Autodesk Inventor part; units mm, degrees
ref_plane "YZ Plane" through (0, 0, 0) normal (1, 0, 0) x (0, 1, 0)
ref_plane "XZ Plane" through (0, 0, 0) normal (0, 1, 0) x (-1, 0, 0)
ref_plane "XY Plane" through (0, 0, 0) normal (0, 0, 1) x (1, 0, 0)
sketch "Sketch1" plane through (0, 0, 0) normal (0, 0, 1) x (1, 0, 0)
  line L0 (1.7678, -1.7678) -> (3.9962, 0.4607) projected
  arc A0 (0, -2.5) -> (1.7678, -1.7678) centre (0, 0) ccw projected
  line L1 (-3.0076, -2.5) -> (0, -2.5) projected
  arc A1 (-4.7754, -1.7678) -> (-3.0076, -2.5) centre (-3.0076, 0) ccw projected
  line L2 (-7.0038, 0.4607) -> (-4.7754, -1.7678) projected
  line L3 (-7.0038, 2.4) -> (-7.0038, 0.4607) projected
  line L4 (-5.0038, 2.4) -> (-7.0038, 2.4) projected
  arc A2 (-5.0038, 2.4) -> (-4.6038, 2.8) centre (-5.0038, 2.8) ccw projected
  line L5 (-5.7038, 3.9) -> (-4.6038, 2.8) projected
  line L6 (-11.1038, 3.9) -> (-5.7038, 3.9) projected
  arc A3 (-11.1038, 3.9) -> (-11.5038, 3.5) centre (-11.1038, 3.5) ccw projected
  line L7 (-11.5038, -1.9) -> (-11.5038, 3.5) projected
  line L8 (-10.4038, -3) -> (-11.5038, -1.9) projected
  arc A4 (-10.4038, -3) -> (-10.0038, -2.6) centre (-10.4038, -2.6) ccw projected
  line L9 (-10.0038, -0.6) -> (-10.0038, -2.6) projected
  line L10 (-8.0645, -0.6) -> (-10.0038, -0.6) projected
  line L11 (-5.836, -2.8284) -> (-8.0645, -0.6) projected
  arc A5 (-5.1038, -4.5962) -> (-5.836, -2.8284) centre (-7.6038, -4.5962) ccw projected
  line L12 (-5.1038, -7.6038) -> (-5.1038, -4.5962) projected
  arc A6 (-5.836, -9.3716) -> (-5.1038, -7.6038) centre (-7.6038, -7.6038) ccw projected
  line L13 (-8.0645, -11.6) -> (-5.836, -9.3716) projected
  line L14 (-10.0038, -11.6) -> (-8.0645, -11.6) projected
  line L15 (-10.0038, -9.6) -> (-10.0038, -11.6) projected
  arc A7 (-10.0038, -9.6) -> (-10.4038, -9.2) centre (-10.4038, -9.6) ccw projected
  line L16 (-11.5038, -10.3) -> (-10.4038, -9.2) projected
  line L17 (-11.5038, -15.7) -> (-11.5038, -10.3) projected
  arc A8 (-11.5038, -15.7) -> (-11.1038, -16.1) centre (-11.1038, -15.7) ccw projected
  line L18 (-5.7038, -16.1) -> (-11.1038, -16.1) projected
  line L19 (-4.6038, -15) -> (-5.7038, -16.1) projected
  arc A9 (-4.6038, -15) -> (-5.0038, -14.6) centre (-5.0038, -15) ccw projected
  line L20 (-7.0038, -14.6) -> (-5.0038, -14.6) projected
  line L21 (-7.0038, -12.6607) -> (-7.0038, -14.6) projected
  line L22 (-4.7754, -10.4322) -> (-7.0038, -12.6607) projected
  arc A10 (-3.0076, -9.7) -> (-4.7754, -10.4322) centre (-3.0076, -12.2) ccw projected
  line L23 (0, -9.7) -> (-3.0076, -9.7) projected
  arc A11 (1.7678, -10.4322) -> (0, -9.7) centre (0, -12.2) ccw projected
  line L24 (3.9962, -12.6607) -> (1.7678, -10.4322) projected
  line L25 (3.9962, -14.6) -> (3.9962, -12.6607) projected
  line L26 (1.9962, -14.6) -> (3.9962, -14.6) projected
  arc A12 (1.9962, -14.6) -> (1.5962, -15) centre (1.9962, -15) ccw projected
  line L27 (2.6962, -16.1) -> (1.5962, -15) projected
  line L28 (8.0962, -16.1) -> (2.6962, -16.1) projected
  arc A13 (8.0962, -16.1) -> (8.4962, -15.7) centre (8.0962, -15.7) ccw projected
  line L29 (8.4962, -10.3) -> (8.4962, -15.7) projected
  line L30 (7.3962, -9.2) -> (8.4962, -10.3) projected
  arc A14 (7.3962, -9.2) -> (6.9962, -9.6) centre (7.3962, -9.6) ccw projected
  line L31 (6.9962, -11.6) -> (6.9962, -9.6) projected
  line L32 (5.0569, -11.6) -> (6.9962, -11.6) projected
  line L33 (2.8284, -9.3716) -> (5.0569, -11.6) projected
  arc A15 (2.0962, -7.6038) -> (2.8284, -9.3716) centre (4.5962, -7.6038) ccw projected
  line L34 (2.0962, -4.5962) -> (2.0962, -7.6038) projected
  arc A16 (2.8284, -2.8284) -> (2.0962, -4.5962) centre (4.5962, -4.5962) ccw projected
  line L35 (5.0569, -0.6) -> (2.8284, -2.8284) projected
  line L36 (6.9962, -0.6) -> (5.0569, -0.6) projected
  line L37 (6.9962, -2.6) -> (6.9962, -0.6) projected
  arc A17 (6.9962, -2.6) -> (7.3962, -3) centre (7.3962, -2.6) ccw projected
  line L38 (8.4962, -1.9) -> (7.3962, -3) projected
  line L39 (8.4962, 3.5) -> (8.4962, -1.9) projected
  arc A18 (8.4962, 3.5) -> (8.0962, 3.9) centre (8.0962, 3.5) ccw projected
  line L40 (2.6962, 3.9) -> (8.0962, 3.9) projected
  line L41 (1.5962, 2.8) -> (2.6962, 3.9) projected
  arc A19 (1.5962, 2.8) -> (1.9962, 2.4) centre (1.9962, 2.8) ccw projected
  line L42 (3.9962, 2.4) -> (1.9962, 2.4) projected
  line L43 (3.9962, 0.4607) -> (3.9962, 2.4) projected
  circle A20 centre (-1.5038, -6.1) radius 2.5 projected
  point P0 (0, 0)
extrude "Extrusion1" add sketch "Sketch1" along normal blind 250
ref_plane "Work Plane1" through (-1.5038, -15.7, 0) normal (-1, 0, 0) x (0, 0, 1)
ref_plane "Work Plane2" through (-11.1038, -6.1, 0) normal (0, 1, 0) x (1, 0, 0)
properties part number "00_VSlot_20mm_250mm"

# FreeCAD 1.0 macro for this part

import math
import FreeCAD as App
import Part
import Sketcher
from FreeCAD import Vector
Q = App.Units.Quantity

doc = App.newDocument("Part")
body = doc.addObject("PartDesign::Body", "Body")

# Sketch on XY plane
sketch1 = body.newObject("Sketcher::SketchObject", "Sketch")
sketch1.AttachmentSupport = (doc.getObject("XY_Plane"), [""])
sketch1.MapMode = "FlatFace"
sketch1.addGeometry(Part.LineSegment(Vector(4, 0.46, 0), Vector(1.77, -1.77, 0)), False)
sketch1.addGeometry(Part.ArcOfCircle(Part.Circle(Vector(0, 0, 0), Vector(0, 0, 1), 2.5), math.radians(-90), math.radians(-45)), False)
sketch1.addGeometry(Part.LineSegment(Vector(0, -2.5, 0), Vector(-3.01, -2.5, 0)), False)
sketch1.addGeometry(Part.ArcOfCircle(Part.Circle(Vector(-3.01, 0, 0), Vector(0, 0, 1), 2.5), math.radians(-135), math.radians(-90)), False)
sketch1.addGeometry(Part.LineSegment(Vector(-4.78, -1.77, 0), Vector(-7, 0.46, 0)), False)
sketch1.addGeometry(Part.LineSegment(Vector(-7, 0.46, 0), Vector(-7, 2.4, 0)), False)
sketch1.addGeometry(Part.LineSegment(Vector(-7, 2.4, 0), Vector(-5, 2.4, 0)), False)
sketch1.addGeometry(Part.ArcOfCircle(Part.Circle(Vector(-5, 2.8, 0), Vector(0, 0, 1), 0.4), math.radians(-90), math.radians(0)), False)
sketch1.addGeometry(Part.LineSegment(Vector(-4.6, 2.8, 0), Vector(-5.7, 3.9, 0)), False)
sketch1.addGeometry(Part.LineSegment(Vector(-5.7, 3.9, 0), Vector(-11.1, 3.9, 0)), False)
sketch1.addGeometry(Part.ArcOfCircle(Part.Circle(Vector(-11.1, 3.5, 0), Vector(0, 0, 1), 0.4), math.radians(90), math.radians(180)), False)
sketch1.addGeometry(Part.LineSegment(Vector(-11.5, 3.5, 0), Vector(-11.5, -1.9, 0)), False)
sketch1.addGeometry(Part.LineSegment(Vector(-11.5, -1.9, 0), Vector(-10.4, -3, 0)), False)
sketch1.addGeometry(Part.ArcOfCircle(Part.Circle(Vector(-10.4, -2.6, 0), Vector(0, 0, 1), 0.4), math.radians(-90), math.radians(0)), False)
sketch1.addGeometry(Part.LineSegment(Vector(-10, -2.6, 0), Vector(-10, -0.6, 0)), False)
sketch1.addGeometry(Part.LineSegment(Vector(-10, -0.6, 0), Vector(-8.06, -0.6, 0)), False)
sketch1.addGeometry(Part.LineSegment(Vector(-8.06, -0.6, 0), Vector(-5.84, -2.83, 0)), False)
sketch1.addGeometry(Part.ArcOfCircle(Part.Circle(Vector(-7.6, -4.6, 0), Vector(0, 0, 1), 2.5), math.radians(0), math.radians(45)), False)
sketch1.addGeometry(Part.LineSegment(Vector(-5.1, -4.6, 0), Vector(-5.1, -7.6, 0)), False)
sketch1.addGeometry(Part.ArcOfCircle(Part.Circle(Vector(-7.6, -7.6, 0), Vector(0, 0, 1), 2.5), math.radians(-45), math.radians(0)), False)
sketch1.addGeometry(Part.LineSegment(Vector(-5.84, -9.37, 0), Vector(-8.06, -11.6, 0)), False)
sketch1.addGeometry(Part.LineSegment(Vector(-8.06, -11.6, 0), Vector(-10, -11.6, 0)), False)
sketch1.addGeometry(Part.LineSegment(Vector(-10, -11.6, 0), Vector(-10, -9.6, 0)), False)
sketch1.addGeometry(Part.ArcOfCircle(Part.Circle(Vector(-10.4, -9.6, 0), Vector(0, 0, 1), 0.4), math.radians(0), math.radians(90)), False)
sketch1.addGeometry(Part.LineSegment(Vector(-10.4, -9.2, 0), Vector(-11.5, -10.3, 0)), False)
sketch1.addGeometry(Part.LineSegment(Vector(-11.5, -10.3, 0), Vector(-11.5, -15.7, 0)), False)
sketch1.addGeometry(Part.ArcOfCircle(Part.Circle(Vector(-11.1, -15.7, 0), Vector(0, 0, 1), 0.4), math.radians(180), math.radians(270)), False)
sketch1.addGeometry(Part.LineSegment(Vector(-11.1, -16.1, 0), Vector(-5.7, -16.1, 0)), False)
sketch1.addGeometry(Part.LineSegment(Vector(-5.7, -16.1, 0), Vector(-4.6, -15, 0)), False)
sketch1.addGeometry(Part.ArcOfCircle(Part.Circle(Vector(-5, -15, 0), Vector(0, 0, 1), 0.4), math.radians(0), math.radians(90)), False)
sketch1.addGeometry(Part.LineSegment(Vector(-5, -14.6, 0), Vector(-7, -14.6, 0)), False)
sketch1.addGeometry(Part.LineSegment(Vector(-7, -14.6, 0), Vector(-7, -12.66, 0)), False)
sketch1.addGeometry(Part.LineSegment(Vector(-7, -12.66, 0), Vector(-4.78, -10.43, 0)), False)
sketch1.addGeometry(Part.ArcOfCircle(Part.Circle(Vector(-3.01, -12.2, 0), Vector(0, 0, 1), 2.5), math.radians(90), math.radians(135)), False)
sketch1.addGeometry(Part.LineSegment(Vector(-3.01, -9.7, 0), Vector(0, -9.7, 0)), False)
sketch1.addGeometry(Part.ArcOfCircle(Part.Circle(Vector(0, -12.2, 0), Vector(0, 0, 1), 2.5), math.radians(45), math.radians(90)), False)
sketch1.addGeometry(Part.LineSegment(Vector(1.77, -10.43, 0), Vector(4, -12.66, 0)), False)
sketch1.addGeometry(Part.LineSegment(Vector(4, -12.66, 0), Vector(4, -14.6, 0)), False)
sketch1.addGeometry(Part.LineSegment(Vector(4, -14.6, 0), Vector(2, -14.6, 0)), False)
sketch1.addGeometry(Part.ArcOfCircle(Part.Circle(Vector(2, -15, 0), Vector(0, 0, 1), 0.4), math.radians(90), math.radians(180)), False)
sketch1.addGeometry(Part.LineSegment(Vector(1.6, -15, 0), Vector(2.7, -16.1, 0)), False)
sketch1.addGeometry(Part.LineSegment(Vector(2.7, -16.1, 0), Vector(8.1, -16.1, 0)), False)
sketch1.addGeometry(Part.ArcOfCircle(Part.Circle(Vector(8.1, -15.7, 0), Vector(0, 0, 1), 0.4), math.radians(-90), math.radians(0)), False)
sketch1.addGeometry(Part.LineSegment(Vector(8.5, -15.7, 0), Vector(8.5, -10.3, 0)), False)
sketch1.addGeometry(Part.LineSegment(Vector(8.5, -10.3, 0), Vector(7.4, -9.2, 0)), False)
sketch1.addGeometry(Part.ArcOfCircle(Part.Circle(Vector(7.4, -9.6, 0), Vector(0, 0, 1), 0.4), math.radians(90), math.radians(180)), False)
sketch1.addGeometry(Part.LineSegment(Vector(7, -9.6, 0), Vector(7, -11.6, 0)), False)
sketch1.addGeometry(Part.LineSegment(Vector(7, -11.6, 0), Vector(5.06, -11.6, 0)), False)
sketch1.addGeometry(Part.LineSegment(Vector(5.06, -11.6, 0), Vector(2.83, -9.37, 0)), False)
sketch1.addGeometry(Part.ArcOfCircle(Part.Circle(Vector(4.6, -7.6, 0), Vector(0, 0, 1), 2.5), math.radians(180), math.radians(225)), False)
sketch1.addGeometry(Part.LineSegment(Vector(2.1, -7.6, 0), Vector(2.1, -4.6, 0)), False)
sketch1.addGeometry(Part.ArcOfCircle(Part.Circle(Vector(4.6, -4.6, 0), Vector(0, 0, 1), 2.5), math.radians(135), math.radians(180)), False)
sketch1.addGeometry(Part.LineSegment(Vector(2.83, -2.83, 0), Vector(5.06, -0.6, 0)), False)
sketch1.addGeometry(Part.LineSegment(Vector(5.06, -0.6, 0), Vector(7, -0.6, 0)), False)
sketch1.addGeometry(Part.LineSegment(Vector(7, -0.6, 0), Vector(7, -2.6, 0)), False)
sketch1.addGeometry(Part.ArcOfCircle(Part.Circle(Vector(7.4, -2.6, 0), Vector(0, 0, 1), 0.4), math.radians(180), math.radians(270)), False)
sketch1.addGeometry(Part.LineSegment(Vector(7.4, -3, 0), Vector(8.5, -1.9, 0)), False)
sketch1.addGeometry(Part.LineSegment(Vector(8.5, -1.9, 0), Vector(8.5, 3.5, 0)), False)
sketch1.addGeometry(Part.ArcOfCircle(Part.Circle(Vector(8.1, 3.5, 0), Vector(0, 0, 1), 0.4), math.radians(0), math.radians(90)), False)
sketch1.addGeometry(Part.LineSegment(Vector(8.1, 3.9, 0), Vector(2.7, 3.9, 0)), False)
sketch1.addGeometry(Part.LineSegment(Vector(2.7, 3.9, 0), Vector(1.6, 2.8, 0)), False)
sketch1.addGeometry(Part.ArcOfCircle(Part.Circle(Vector(2, 2.8, 0), Vector(0, 0, 1), 0.4), math.radians(180), math.radians(270)), False)
sketch1.addGeometry(Part.LineSegment(Vector(2, 2.4, 0), Vector(4, 2.4, 0)), False)
sketch1.addGeometry(Part.LineSegment(Vector(4, 2.4, 0), Vector(4, 0.46, 0)), False)
sketch1.addGeometry(Part.Circle(Vector(-1.5, -6.1, 0), Vector(0, 0, 1), 2.5), False)
sketch1.addConstraint(Sketcher.Constraint("Tangent", 0, 2, 1, 2))
sketch1.addConstraint(Sketcher.Constraint("Tangent", 1, 1, 2, 1))
sketch1.addConstraint(Sketcher.Constraint("Tangent", 2, 2, 3, 2))
sketch1.addConstraint(Sketcher.Constraint("Tangent", 3, 1, 4, 1))
sketch1.addConstraint(Sketcher.Constraint("Coincident", 4, 2, 5, 1))
sketch1.addConstraint(Sketcher.Constraint("Coincident", 5, 2, 6, 1))
sketch1.addConstraint(Sketcher.Constraint("Tangent", 6, 2, 7, 1))
sketch1.addConstraint(Sketcher.Constraint("Coincident", 7, 2, 8, 1))
sketch1.addConstraint(Sketcher.Constraint("Coincident", 8, 2, 9, 1))
sketch1.addConstraint(Sketcher.Constraint("Tangent", 9, 2, 10, 1))
sketch1.addConstraint(Sketcher.Constraint("Tangent", 10, 2, 11, 1))
sketch1.addConstraint(Sketcher.Constraint("Coincident", 11, 2, 12, 1))
sketch1.addConstraint(Sketcher.Constraint("Coincident", 12, 2, 13, 1))
sketch1.addConstraint(Sketcher.Constraint("Tangent", 13, 2, 14, 1))
sketch1.addConstraint(Sketcher.Constraint("Coincident", 14, 2, 15, 1))
sketch1.addConstraint(Sketcher.Constraint("Coincident", 15, 2, 16, 1))
sketch1.addConstraint(Sketcher.Constraint("Tangent", 16, 2, 17, 2))
sketch1.addConstraint(Sketcher.Constraint("Tangent", 17, 1, 18, 1))
sketch1.addConstraint(Sketcher.Constraint("Tangent", 18, 2, 19, 2))
sketch1.addConstraint(Sketcher.Constraint("Tangent", 19, 1, 20, 1))
sketch1.addConstraint(Sketcher.Constraint("Coincident", 20, 2, 21, 1))
sketch1.addConstraint(Sketcher.Constraint("Coincident", 21, 2, 22, 1))
sketch1.addConstraint(Sketcher.Constraint("Tangent", 22, 2, 23, 1))
sketch1.addConstraint(Sketcher.Constraint("Coincident", 23, 2, 24, 1))
sketch1.addConstraint(Sketcher.Constraint("Coincident", 24, 2, 25, 1))
sketch1.addConstraint(Sketcher.Constraint("Tangent", 25, 2, 26, 1))
sketch1.addConstraint(Sketcher.Constraint("Tangent", 26, 2, 27, 1))
sketch1.addConstraint(Sketcher.Constraint("Coincident", 27, 2, 28, 1))
sketch1.addConstraint(Sketcher.Constraint("Coincident", 28, 2, 29, 1))
sketch1.addConstraint(Sketcher.Constraint("Tangent", 29, 2, 30, 1))
sketch1.addConstraint(Sketcher.Constraint("Coincident", 30, 2, 31, 1))
sketch1.addConstraint(Sketcher.Constraint("Coincident", 31, 2, 32, 1))
sketch1.addConstraint(Sketcher.Constraint("Tangent", 32, 2, 33, 2))
sketch1.addConstraint(Sketcher.Constraint("Tangent", 33, 1, 34, 1))
sketch1.addConstraint(Sketcher.Constraint("Tangent", 34, 2, 35, 2))
sketch1.addConstraint(Sketcher.Constraint("Tangent", 35, 1, 36, 1))
sketch1.addConstraint(Sketcher.Constraint("Coincident", 36, 2, 37, 1))
sketch1.addConstraint(Sketcher.Constraint("Coincident", 37, 2, 38, 1))
sketch1.addConstraint(Sketcher.Constraint("Tangent", 38, 2, 39, 1))
sketch1.addConstraint(Sketcher.Constraint("Coincident", 39, 2, 40, 1))
sketch1.addConstraint(Sketcher.Constraint("Coincident", 40, 2, 41, 1))
sketch1.addConstraint(Sketcher.Constraint("Tangent", 41, 2, 42, 1))
sketch1.addConstraint(Sketcher.Constraint("Tangent", 42, 2, 43, 1))
sketch1.addConstraint(Sketcher.Constraint("Coincident", 43, 2, 44, 1))
sketch1.addConstraint(Sketcher.Constraint("Coincident", 44, 2, 45, 1))
sketch1.addConstraint(Sketcher.Constraint("Tangent", 45, 2, 46, 1))
sketch1.addConstraint(Sketcher.Constraint("Coincident", 46, 2, 47, 1))
sketch1.addConstraint(Sketcher.Constraint("Coincident", 47, 2, 48, 1))
sketch1.addConstraint(Sketcher.Constraint("Tangent", 48, 2, 49, 2))
sketch1.addConstraint(Sketcher.Constraint("Tangent", 49, 1, 50, 1))
sketch1.addConstraint(Sketcher.Constraint("Tangent", 50, 2, 51, 2))
sketch1.addConstraint(Sketcher.Constraint("Tangent", 51, 1, 52, 1))
sketch1.addConstraint(Sketcher.Constraint("Coincident", 52, 2, 53, 1))
sketch1.addConstraint(Sketcher.Constraint("Coincident", 53, 2, 54, 1))
sketch1.addConstraint(Sketcher.Constraint("Tangent", 54, 2, 55, 1))
sketch1.addConstraint(Sketcher.Constraint("Coincident", 55, 2, 56, 1))
sketch1.addConstraint(Sketcher.Constraint("Coincident", 56, 2, 57, 1))
sketch1.addConstraint(Sketcher.Constraint("Tangent", 57, 2, 58, 1))
sketch1.addConstraint(Sketcher.Constraint("Tangent", 58, 2, 59, 1))
sketch1.addConstraint(Sketcher.Constraint("Coincident", 59, 2, 60, 1))
sketch1.addConstraint(Sketcher.Constraint("Coincident", 60, 2, 61, 1))
sketch1.addConstraint(Sketcher.Constraint("Tangent", 61, 2, 62, 1))
sketch1.addConstraint(Sketcher.Constraint("Coincident", 62, 2, 63, 1))
sketch1.addConstraint(Sketcher.Constraint("Coincident", 63, 2, 0, 1))
sketch1.addConstraint(Sketcher.Constraint("Horizontal", 2))
sketch1.addConstraint(Sketcher.Constraint("Vertical", 5))
sketch1.addConstraint(Sketcher.Constraint("Horizontal", 6))
sketch1.addConstraint(Sketcher.Constraint("Horizontal", 9))
sketch1.addConstraint(Sketcher.Constraint("Vertical", 11))
sketch1.addConstraint(Sketcher.Constraint("Vertical", 14))
sketch1.addConstraint(Sketcher.Constraint("Horizontal", 15))
sketch1.addConstraint(Sketcher.Constraint("Vertical", 18))
sketch1.addConstraint(Sketcher.Constraint("Horizontal", 21))
sketch1.addConstraint(Sketcher.Constraint("Vertical", 22))
sketch1.addConstraint(Sketcher.Constraint("Vertical", 25))
sketch1.addConstraint(Sketcher.Constraint("Horizontal", 27))
sketch1.addConstraint(Sketcher.Constraint("Horizontal", 30))
sketch1.addConstraint(Sketcher.Constraint("Vertical", 31))
sketch1.addConstraint(Sketcher.Constraint("Horizontal", 34))
sketch1.addConstraint(Sketcher.Constraint("Vertical", 37))
sketch1.addConstraint(Sketcher.Constraint("Horizontal", 38))
sketch1.addConstraint(Sketcher.Constraint("Horizontal", 41))
sketch1.addConstraint(Sketcher.Constraint("Vertical", 43))
sketch1.addConstraint(Sketcher.Constraint("Vertical", 46))
sketch1.addConstraint(Sketcher.Constraint("Horizontal", 47))
sketch1.addConstraint(Sketcher.Constraint("Vertical", 50))
sketch1.addConstraint(Sketcher.Constraint("Horizontal", 53))
sketch1.addConstraint(Sketcher.Constraint("Vertical", 54))
sketch1.addConstraint(Sketcher.Constraint("Vertical", 57))
sketch1.addConstraint(Sketcher.Constraint("Horizontal", 59))
sketch1.addConstraint(Sketcher.Constraint("Horizontal", 62))
sketch1.addConstraint(Sketcher.Constraint("Vertical", 63))
sketch1.addConstraint(Sketcher.Constraint("Coincident", 1, 3, -1, 1))
sketch1.addConstraint(Sketcher.Constraint("Equal", 1, 3))
sketch1.addConstraint(Sketcher.Constraint("Equal", 7, 10))
sketch1.addConstraint(Sketcher.Constraint("Equal", 10, 13))
sketch1.addConstraint(Sketcher.Constraint("Equal", 3, 17))
sketch1.addConstraint(Sketcher.Constraint("Equal", 17, 19))
sketch1.addConstraint(Sketcher.Constraint("Equal", 13, 23))
sketch1.addConstraint(Sketcher.Constraint("Equal", 23, 26))
sketch1.addConstraint(Sketcher.Constraint("Equal", 26, 29))
sketch1.addConstraint(Sketcher.Constraint("Equal", 19, 33))
sketch1.addConstraint(Sketcher.Constraint("Equal", 33, 35))
sketch1.addConstraint(Sketcher.Constraint("Equal", 29, 39))
sketch1.addConstraint(Sketcher.Constraint("Equal", 39, 42))
sketch1.addConstraint(Sketcher.Constraint("Equal", 42, 45))
sketch1.addConstraint(Sketcher.Constraint("Equal", 35, 49))
sketch1.addConstraint(Sketcher.Constraint("Equal", 49, 51))
sketch1.addConstraint(Sketcher.Constraint("Equal", 45, 55))
sketch1.addConstraint(Sketcher.Constraint("Equal", 55, 58))
sketch1.addConstraint(Sketcher.Constraint("Equal", 58, 61))
sketch1.addConstraint(Sketcher.Constraint("Equal", 51, 64))
sketch1.addConstraint(Sketcher.Constraint("PointOnObject", 35, 3, -2))
sketch1.addConstraint(Sketcher.Constraint("Perpendicular", 0, 4))
sketch1.addConstraint(Sketcher.Constraint("Parallel", 4, 8))
sketch1.addConstraint(Sketcher.Constraint("Parallel", 8, 12))
sketch1.addConstraint(Sketcher.Constraint("Parallel", 12, 16))
sketch1.addConstraint(Sketcher.Constraint("Perpendicular", 16, 20))
sketch1.addConstraint(Sketcher.Constraint("Parallel", 20, 24))
sketch1.addConstraint(Sketcher.Constraint("Parallel", 24, 28))
sketch1.addConstraint(Sketcher.Constraint("Parallel", 28, 32))
sketch1.addConstraint(Sketcher.Constraint("Perpendicular", 32, 36))
sketch1.addConstraint(Sketcher.Constraint("Parallel", 36, 40))
sketch1.addConstraint(Sketcher.Constraint("Parallel", 40, 44))
sketch1.addConstraint(Sketcher.Constraint("Parallel", 44, 48))
sketch1.addConstraint(Sketcher.Constraint("Perpendicular", 48, 52))
sketch1.addConstraint(Sketcher.Constraint("Parallel", 52, 56))
sketch1.addConstraint(Sketcher.Constraint("Parallel", 56, 60))
sketch1.addConstraint(Sketcher.Constraint("Horizontal", 29, 3, 39, 3))
sketch1.addConstraint(Sketcher.Constraint("Horizontal", 26, 3, 42, 3))
sketch1.addConstraint(Sketcher.Constraint("Horizontal", 23, 3, 45, 3))
sketch1.addConstraint(Sketcher.Constraint("Horizontal", 19, 3, 49, 3))
sketch1.addConstraint(Sketcher.Constraint("Horizontal", 17, 3, 51, 3))
sketch1.addConstraint(Sketcher.Constraint("Horizontal", 13, 3, 55, 3))
sketch1.addConstraint(Sketcher.Constraint("Horizontal", 10, 3, 58, 3))
sketch1.addConstraint(Sketcher.Constraint("Horizontal", 7, 3, 61, 3))
sketch1.addConstraint(Sketcher.Constraint("Horizontal", 0, 2, 3, 1))
sketch1.addConstraint(Sketcher.Constraint("Horizontal", 61, 3, 7, 2))
sketch1.addConstraint(Sketcher.Constraint("Horizontal", 39, 3, 28, 2))
sketch1.addConstraint(Sketcher.Constraint("Horizontal", 31, 2, 36, 2))
sketch1.addConstraint(Sketcher.Constraint("Horizontal", 28, 2, 39, 2))
sketch1.addConstraint(Sketcher.Constraint("Horizontal", 24, 2, 43, 2))
sketch1.addConstraint(Sketcher.Constraint("Horizontal", 21, 2, 46, 2))
sketch1.addConstraint(Sketcher.Constraint("Horizontal", 15, 2, 52, 2))
sketch1.addConstraint(Sketcher.Constraint("Horizontal", 11, 2, 56, 2))
sketch1.addConstraint(Sketcher.Constraint("Horizontal", 7, 2, 60, 2))
sketch1.addConstraint(Sketcher.Constraint("Horizontal", 4, 2, 63, 2))
sketch1.addConstraint(Sketcher.Constraint("Vertical", 13, 3, 23, 3))
sketch1.addConstraint(Sketcher.Constraint("Vertical", 10, 3, 26, 3))
sketch1.addConstraint(Sketcher.Constraint("Vertical", 7, 3, 29, 3))
sketch1.addConstraint(Sketcher.Constraint("Vertical", 3, 3, 33, 3))
sketch1.addConstraint(Sketcher.Constraint("Vertical", 45, 3, 55, 3))
sketch1.addConstraint(Sketcher.Constraint("Vertical", 42, 3, 58, 3))
sketch1.addConstraint(Sketcher.Constraint("Vertical", 39, 3, 61, 3))
sketch1.addConstraint(Sketcher.Constraint("Vertical", 23, 3, 12, 2))
sketch1.addConstraint(Sketcher.Constraint("Vertical", 15, 2, 20, 2))
sketch1.addConstraint(Sketcher.Constraint("Vertical", 12, 2, 23, 2))
sketch1.addConstraint(Sketcher.Constraint("Vertical", 8, 2, 27, 2))
sketch1.addConstraint(Sketcher.Constraint("Vertical", 5, 2, 30, 2))
sketch1.addConstraint(Sketcher.Constraint("Vertical", 55, 3, 44, 2))
sketch1.addConstraint(Sketcher.Constraint("Equal", 30, 38))
sketch1.addConstraint(Sketcher.Constraint("Equal", 27, 41))
sketch1.addConstraint(Sketcher.Constraint("Equal", 21, 47))
sketch1.addConstraint(Sketcher.Constraint("Equal", 53, 5))
sketch1.addConstraint(Sketcher.Constraint("Equal", 59, 11))
sketch1.addConstraint(Sketcher.Constraint("Equal", 62, 14))
sketch1.addConstraint(Sketcher.Constraint("Equal", 34, 18))
sketch1.addConstraint(Sketcher.Constraint("Equal", 14, 22))
sketch1.addConstraint(Sketcher.Constraint("Equal", 11, 25))
sketch1.addConstraint(Sketcher.Constraint("Equal", 5, 31))
sketch1.addConstraint(Sketcher.Constraint("Equal", 8, 12))
sketch1.addConstraint(Sketcher.Constraint("Equal", 4, 16))
sketch1.addConstraint(Sketcher.Constraint("Diameter", 64, Q("5 mm")))
sketch1.addConstraint(Sketcher.Constraint("Radius", 7, Q("0.4 mm")))
sketch1.addConstraint(Sketcher.Constraint("DistanceX", 6, 1, 6, 2, Q("2 mm")))
sketch1.addConstraint(Sketcher.Constraint("DistanceX", 9, 2, 9, 1, Q("5.4 mm")))
sketch1.addConstraint(Sketcher.Constraint("DistanceY", 29, 3, -1, 1, Q("15 mm")))
sketch1.addConstraint(Sketcher.Constraint("DistanceY", 12, 2, -1, 1, Q("3 mm")))
sketch1.addConstraint(Sketcher.Constraint("DistanceY", -1, 1, 10, 3, Q("3.5 mm")))
sketch1.addConstraint(Sketcher.Constraint("DistanceY", 64, 3, -1, 1, Q("6.1 mm")))
sketch1.addConstraint(Sketcher.Constraint("DistanceX", 2, 2, 2, 1, Q("3.0076 mm")))
sketch1.addConstraint(Sketcher.Constraint("DistanceX", 64, 3, -1, 1, Q("1.5038 mm")))
pad1 = body.newObject("PartDesign::Pad", "Pad")
pad1.Profile = sketch1
pad1.Length = 250

doc.recompute()
